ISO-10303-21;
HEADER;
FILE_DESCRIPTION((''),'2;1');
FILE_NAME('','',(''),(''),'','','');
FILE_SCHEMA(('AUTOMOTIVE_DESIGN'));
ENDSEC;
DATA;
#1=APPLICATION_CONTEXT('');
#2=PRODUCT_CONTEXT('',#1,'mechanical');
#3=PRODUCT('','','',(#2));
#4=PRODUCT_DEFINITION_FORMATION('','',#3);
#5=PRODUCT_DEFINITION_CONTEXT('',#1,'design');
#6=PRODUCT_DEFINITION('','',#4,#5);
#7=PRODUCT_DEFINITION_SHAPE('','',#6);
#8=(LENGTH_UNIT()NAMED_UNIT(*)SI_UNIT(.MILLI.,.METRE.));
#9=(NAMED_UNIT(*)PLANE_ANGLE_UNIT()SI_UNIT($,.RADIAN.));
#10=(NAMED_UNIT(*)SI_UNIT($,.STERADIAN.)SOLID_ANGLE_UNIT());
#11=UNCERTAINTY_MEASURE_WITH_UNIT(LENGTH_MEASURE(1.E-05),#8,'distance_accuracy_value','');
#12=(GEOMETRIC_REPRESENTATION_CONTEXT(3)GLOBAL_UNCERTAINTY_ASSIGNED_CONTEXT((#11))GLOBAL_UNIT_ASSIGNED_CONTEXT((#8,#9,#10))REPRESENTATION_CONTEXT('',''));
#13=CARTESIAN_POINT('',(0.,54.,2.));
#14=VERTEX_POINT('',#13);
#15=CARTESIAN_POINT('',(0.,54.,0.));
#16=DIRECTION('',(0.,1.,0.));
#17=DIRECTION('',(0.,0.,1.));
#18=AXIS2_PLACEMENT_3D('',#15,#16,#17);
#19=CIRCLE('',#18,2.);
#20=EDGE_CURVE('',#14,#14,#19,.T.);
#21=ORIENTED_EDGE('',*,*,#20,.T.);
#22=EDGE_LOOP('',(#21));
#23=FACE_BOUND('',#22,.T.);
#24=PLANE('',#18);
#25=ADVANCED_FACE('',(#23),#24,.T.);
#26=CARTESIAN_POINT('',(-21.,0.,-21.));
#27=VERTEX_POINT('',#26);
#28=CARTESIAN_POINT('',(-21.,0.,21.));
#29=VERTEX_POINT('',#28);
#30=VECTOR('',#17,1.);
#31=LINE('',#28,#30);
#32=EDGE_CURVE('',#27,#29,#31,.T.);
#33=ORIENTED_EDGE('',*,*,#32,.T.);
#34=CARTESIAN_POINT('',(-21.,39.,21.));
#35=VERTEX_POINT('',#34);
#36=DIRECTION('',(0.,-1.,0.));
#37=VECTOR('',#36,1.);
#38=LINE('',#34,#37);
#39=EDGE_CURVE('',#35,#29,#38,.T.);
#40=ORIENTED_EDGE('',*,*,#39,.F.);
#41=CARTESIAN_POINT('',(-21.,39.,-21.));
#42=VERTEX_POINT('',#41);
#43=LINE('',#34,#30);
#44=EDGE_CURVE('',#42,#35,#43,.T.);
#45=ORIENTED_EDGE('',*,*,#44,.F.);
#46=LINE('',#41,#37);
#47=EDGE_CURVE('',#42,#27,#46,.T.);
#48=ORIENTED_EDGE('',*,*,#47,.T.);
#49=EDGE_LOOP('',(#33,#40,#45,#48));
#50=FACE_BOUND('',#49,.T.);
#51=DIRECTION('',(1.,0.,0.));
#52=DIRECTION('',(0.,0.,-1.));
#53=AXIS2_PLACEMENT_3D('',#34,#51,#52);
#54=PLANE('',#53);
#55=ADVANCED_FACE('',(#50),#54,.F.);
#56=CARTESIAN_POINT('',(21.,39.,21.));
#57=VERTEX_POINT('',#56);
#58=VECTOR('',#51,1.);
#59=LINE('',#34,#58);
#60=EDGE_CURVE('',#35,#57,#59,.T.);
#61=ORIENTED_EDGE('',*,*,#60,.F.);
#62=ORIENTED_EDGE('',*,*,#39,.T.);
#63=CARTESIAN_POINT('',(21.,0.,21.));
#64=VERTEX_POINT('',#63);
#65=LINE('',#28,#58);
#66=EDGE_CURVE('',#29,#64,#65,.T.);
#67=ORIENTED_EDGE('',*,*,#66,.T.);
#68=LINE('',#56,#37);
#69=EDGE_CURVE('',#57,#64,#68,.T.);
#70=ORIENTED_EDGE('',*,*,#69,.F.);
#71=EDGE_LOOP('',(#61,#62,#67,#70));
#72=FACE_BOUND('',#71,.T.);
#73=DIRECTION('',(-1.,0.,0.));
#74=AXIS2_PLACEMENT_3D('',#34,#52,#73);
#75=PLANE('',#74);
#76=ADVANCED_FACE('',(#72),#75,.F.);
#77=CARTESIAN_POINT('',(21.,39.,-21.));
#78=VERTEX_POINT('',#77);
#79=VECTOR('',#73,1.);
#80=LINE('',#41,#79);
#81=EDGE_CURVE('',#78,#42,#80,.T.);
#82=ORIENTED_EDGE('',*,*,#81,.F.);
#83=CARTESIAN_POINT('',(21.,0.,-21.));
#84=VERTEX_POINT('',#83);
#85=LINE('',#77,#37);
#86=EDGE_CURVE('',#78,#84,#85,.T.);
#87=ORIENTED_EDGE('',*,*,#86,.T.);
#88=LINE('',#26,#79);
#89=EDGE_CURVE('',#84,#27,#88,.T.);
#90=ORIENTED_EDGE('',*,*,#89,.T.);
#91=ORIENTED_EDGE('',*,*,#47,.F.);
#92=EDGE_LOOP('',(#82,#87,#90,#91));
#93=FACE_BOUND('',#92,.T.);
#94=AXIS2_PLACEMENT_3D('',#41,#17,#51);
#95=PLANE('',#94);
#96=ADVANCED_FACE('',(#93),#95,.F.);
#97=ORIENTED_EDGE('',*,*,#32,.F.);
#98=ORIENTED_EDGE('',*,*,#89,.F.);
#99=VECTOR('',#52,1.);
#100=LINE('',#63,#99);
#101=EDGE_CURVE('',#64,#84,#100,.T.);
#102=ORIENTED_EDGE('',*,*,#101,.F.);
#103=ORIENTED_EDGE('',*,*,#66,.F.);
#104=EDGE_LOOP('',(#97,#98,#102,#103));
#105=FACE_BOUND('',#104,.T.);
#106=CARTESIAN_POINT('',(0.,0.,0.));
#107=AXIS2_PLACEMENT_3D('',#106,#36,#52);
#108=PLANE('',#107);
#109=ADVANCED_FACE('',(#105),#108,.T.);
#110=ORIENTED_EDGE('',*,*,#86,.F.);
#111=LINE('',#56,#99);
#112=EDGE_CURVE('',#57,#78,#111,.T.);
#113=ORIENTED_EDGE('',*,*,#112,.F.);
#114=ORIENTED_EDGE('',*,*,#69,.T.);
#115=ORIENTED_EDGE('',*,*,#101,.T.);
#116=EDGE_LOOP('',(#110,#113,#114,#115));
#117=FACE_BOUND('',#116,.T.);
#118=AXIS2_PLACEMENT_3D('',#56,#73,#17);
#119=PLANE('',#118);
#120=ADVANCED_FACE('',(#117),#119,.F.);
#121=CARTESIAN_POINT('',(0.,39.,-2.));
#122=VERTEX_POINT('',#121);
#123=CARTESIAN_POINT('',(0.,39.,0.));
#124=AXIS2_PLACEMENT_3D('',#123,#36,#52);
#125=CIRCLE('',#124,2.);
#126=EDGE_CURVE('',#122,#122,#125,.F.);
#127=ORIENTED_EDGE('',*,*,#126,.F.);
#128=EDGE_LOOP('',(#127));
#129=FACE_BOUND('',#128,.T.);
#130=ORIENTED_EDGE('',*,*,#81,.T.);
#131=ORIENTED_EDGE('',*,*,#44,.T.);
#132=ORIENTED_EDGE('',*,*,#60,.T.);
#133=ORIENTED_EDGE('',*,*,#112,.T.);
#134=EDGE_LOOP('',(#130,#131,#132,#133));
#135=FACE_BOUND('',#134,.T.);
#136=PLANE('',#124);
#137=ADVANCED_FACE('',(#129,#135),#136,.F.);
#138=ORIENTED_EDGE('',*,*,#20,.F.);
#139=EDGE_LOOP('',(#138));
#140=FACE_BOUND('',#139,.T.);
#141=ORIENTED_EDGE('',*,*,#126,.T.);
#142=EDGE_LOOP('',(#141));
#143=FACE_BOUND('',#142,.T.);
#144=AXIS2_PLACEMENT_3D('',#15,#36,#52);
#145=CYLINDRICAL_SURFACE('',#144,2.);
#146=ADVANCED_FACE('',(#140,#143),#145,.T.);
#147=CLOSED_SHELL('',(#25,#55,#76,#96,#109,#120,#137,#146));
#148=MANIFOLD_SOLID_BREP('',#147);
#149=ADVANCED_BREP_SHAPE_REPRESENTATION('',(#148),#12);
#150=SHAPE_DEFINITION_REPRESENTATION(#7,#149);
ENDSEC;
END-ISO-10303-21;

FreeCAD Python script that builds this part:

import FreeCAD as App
import Part
import Sketcher


def add_polygon(sketch, points):
    """Adds a closed chain of lines whose ends are joined by coincident constraints."""
    first, n = sketch.GeometryCount, len(points)
    for a, b in zip(points, points[1:] + points[:1]):
        sketch.addGeometry(Part.LineSegment(App.Vector(*a, 0), App.Vector(*b, 0)), False)
    for i in range(n):
        sketch.addConstraint(Sketcher.Constraint("Coincident", first + i, 2, first + (i + 1) % n, 1))

doc = App.newDocument("Part")
body = doc.addObject("PartDesign::Body", "Body")

sketch1 = body.newObject("Sketcher::SketchObject", "Sketch")
sketch1.AttachmentSupport = (doc.getObject("XZ_Plane"), [""])
sketch1.MapMode = "FlatFace"
add_polygon(sketch1, [(-21, -21), (-21, 21), (21, 21), (21, -21)])
sketch1.addConstraint(Sketcher.Constraint("Vertical", 0))
sketch1.addConstraint(Sketcher.Constraint("Horizontal", 1))
sketch1.addConstraint(Sketcher.Constraint("Vertical", 2))
sketch1.addConstraint(Sketcher.Constraint("Horizontal", 3))
sketch1.addConstraint(Sketcher.Constraint("Symmetric", 0, 2, 2, 2, -1, 1))
sketch1.addConstraint(Sketcher.Constraint("Equal", 3, 0))
sketch1.addConstraint(Sketcher.Constraint("DistanceX", 1, 1, 1, 2, 42.0))
pad1 = body.newObject("PartDesign::Pad", "Pad")
pad1.Profile = sketch1
pad1.Length = 39
pad1.Reversed = True

sketch2 = body.newObject("Sketcher::SketchObject", "Sketch001")
sketch2.AttachmentSupport = (doc.getObject("XZ_Plane"), [""])
sketch2.MapMode = "FlatFace"
sketch2.AttachmentOffset = App.Placement(App.Vector(0, 0, -39), App.Rotation())
sketch2.addGeometry(Part.Circle(App.Vector(0, 0, 0), App.Vector(0, 0, 1), 2), False)
sketch2.addConstraint(Sketcher.Constraint("Coincident", 0, 3, -1, 1))
sketch2.addConstraint(Sketcher.Constraint("Diameter", 0, 4.0))
pad2 = body.newObject("PartDesign::Pad", "Pad001")
pad2.Profile = sketch2
pad2.Length = 15
pad2.Reversed = True

doc.recompute()
